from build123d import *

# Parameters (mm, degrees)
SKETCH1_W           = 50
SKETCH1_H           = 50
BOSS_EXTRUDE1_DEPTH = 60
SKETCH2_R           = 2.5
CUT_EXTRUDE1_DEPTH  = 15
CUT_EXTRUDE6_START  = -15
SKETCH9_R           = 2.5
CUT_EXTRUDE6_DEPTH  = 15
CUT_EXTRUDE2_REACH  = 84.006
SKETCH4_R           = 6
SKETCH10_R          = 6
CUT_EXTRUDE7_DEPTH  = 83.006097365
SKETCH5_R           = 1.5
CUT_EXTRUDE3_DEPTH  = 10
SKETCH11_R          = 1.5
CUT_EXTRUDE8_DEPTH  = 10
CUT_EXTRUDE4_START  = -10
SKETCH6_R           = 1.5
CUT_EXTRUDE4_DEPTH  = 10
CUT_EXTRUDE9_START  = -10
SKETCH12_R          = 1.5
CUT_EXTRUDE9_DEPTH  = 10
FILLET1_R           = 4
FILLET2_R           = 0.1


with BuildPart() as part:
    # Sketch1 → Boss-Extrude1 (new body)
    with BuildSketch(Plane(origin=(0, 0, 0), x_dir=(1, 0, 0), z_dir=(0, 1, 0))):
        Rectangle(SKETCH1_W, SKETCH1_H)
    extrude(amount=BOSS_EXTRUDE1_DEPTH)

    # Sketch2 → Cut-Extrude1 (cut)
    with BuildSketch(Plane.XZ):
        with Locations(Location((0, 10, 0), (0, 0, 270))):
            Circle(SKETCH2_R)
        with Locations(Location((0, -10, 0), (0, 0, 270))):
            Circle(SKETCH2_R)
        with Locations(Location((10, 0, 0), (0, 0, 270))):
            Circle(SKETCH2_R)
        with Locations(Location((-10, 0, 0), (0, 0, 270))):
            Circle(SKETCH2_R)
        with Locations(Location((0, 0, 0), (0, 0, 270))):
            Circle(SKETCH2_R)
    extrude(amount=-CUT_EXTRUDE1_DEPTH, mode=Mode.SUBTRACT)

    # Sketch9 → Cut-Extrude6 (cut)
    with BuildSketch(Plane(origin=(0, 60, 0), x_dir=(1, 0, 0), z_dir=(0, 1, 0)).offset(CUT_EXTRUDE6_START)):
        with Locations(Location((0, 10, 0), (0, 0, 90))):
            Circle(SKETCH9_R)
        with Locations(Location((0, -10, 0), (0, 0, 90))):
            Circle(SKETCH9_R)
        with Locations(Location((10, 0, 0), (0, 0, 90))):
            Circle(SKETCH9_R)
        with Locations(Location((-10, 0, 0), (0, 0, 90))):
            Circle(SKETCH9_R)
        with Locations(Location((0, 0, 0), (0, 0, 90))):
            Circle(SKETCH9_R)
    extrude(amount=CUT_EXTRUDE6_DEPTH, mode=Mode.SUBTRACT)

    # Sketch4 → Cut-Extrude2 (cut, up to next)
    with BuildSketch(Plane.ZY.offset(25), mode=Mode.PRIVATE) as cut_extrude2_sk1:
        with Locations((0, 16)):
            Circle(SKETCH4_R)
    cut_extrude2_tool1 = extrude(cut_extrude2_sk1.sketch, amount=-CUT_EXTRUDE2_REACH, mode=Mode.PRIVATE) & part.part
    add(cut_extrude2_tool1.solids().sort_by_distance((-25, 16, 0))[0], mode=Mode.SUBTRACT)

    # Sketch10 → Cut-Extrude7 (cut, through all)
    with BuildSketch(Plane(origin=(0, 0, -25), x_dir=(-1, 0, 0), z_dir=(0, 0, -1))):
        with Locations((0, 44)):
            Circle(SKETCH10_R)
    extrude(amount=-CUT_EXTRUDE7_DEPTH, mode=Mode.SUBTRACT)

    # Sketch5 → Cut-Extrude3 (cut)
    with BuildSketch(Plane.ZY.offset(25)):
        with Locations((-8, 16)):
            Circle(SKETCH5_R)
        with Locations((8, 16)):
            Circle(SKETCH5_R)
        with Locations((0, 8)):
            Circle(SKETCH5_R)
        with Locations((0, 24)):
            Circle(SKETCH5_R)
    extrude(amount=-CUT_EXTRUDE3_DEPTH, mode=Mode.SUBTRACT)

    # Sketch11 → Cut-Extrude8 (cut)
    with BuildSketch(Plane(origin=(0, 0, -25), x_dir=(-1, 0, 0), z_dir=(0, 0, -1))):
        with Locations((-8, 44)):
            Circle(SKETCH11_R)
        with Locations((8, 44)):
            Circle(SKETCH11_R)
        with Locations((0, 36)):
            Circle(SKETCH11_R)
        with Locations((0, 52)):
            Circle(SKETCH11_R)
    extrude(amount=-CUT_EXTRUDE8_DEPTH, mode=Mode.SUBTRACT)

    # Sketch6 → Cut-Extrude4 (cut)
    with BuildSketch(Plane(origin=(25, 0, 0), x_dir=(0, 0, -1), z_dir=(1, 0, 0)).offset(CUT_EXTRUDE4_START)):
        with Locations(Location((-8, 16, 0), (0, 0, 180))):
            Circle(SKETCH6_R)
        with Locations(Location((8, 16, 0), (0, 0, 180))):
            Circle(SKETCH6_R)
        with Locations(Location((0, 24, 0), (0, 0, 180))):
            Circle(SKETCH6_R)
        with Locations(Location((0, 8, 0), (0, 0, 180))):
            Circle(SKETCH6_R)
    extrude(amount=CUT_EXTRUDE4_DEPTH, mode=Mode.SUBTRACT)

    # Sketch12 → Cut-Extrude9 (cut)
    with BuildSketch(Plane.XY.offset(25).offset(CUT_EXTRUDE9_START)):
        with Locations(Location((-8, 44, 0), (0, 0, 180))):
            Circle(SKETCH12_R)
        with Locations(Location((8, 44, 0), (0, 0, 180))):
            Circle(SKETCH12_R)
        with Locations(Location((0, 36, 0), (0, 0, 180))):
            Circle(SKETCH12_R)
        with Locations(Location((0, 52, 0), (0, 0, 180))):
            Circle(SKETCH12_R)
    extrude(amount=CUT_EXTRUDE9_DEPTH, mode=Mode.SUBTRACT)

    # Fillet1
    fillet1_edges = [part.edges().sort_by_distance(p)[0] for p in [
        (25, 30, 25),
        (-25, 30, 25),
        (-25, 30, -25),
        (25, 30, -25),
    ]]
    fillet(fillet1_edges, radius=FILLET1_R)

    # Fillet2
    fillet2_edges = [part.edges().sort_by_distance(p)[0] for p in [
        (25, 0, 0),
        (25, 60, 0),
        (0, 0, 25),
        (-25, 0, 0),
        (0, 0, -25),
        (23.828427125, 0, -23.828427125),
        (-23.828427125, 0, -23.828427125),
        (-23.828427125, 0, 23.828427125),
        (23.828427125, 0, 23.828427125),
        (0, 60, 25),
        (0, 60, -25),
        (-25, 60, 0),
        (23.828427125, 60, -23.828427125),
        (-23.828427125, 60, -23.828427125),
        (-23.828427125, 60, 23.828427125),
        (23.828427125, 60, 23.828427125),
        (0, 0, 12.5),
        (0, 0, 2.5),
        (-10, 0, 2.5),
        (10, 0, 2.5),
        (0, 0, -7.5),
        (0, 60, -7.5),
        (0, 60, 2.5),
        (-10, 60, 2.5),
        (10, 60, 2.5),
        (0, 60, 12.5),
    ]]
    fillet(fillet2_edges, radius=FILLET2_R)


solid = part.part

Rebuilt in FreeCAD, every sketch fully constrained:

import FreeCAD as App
import Part
import Sketcher

V = App.Vector


def edges_at(feature, points):
    """Names of the edges that pass closest to the given points."""
    edges = feature.Shape.Edges
    near = lambda p: min(range(len(edges)), key=lambda i: edges[i].distToShape(Part.Vertex(*p))[0])
    return sorted({f"Edge{near(p) + 1}" for p in points})

doc = App.newDocument("Part")
params = doc.addObject("Spreadsheet::Sheet", "Params")
for row, (alias, value) in enumerate([
    ("sketch1_width", "50 mm"),
    ("pad1_length", "60 mm"),
    ("sketch2_diameter", "5 mm"),
    ("pocket1_length", "15 mm"),
    ("sketch3_diameter", "5 mm"),
    ("pocket2_length", "15 mm"),
    ("sketch4_diameter", "12 mm"),
    ("sketch5_diameter", "12 mm"),
    ("sketch6_diameter", "3 mm"),
    ("pocket5_length", "10 mm"),
    ("sketch7_diameter", "3 mm"),
    ("pocket6_length", "10 mm"),
    ("sketch8_diameter", "3 mm"),
    ("pocket7_length", "10 mm"),
    ("sketch9_diameter", "3 mm"),
    ("pocket8_length", "10 mm"),
    ("fillet_radius", "4 mm"),
    ("fillet2_radius", "0.1 mm"),
], start=1):
    params.set(f"A{row}", alias)
    params.set(f"B{row}", "=" + value)
    params.setAlias(f"B{row}", alias)

body = doc.addObject("PartDesign::Body", "Body")

sketch1 = body.newObject("Sketcher::SketchObject", "Sketch")
sketch1.AttachmentSupport = (doc.getObject("XZ_Plane"), [""])
sketch1.MapMode = "FlatFace"
sketch1.addGeometry([
    Part.LineSegment(V(-25, -25, 0), V(-25, 25, 0)),
    Part.LineSegment(V(-25, 25, 0), V(25, 25, 0)),
    Part.LineSegment(V(25, 25, 0), V(25, -25, 0)),
    Part.LineSegment(V(25, -25, 0), V(-25, -25, 0)),
], False)
sketch1.addConstraint([
    Sketcher.Constraint("Coincident", 0, 2, 1, 1),
    Sketcher.Constraint("Coincident", 1, 2, 2, 1),
    Sketcher.Constraint("Coincident", 2, 2, 3, 1),
    Sketcher.Constraint("Coincident", 3, 2, 0, 1),
    Sketcher.Constraint("Vertical", 0),
    Sketcher.Constraint("Horizontal", 1),
    Sketcher.Constraint("Vertical", 2),
    Sketcher.Constraint("Horizontal", 3),
    Sketcher.Constraint("Symmetric", 0, 2, 2, 2, -1, 1),
    Sketcher.Constraint("Equal", 3, 0),
    Sketcher.Constraint("DistanceX", 1, 1, 1, 2, 50.0),
])
sketch1.setExpression("Constraints[10]", "Params.sketch1_width")
pad1 = body.newObject("PartDesign::Pad", "Pad")
pad1.Profile = sketch1
pad1.setExpression("Length", "Params.pad1_length")
pad1.Reversed = True

sketch2 = body.newObject("Sketcher::SketchObject", "Sketch001")
sketch2.AttachmentSupport = (doc.getObject("XZ_Plane"), [""])
sketch2.MapMode = "FlatFace"
sketch2.addGeometry([
    Part.Circle(V(0, 10, 0), V(0, 0, 1), 2.5),
    Part.Circle(V(0, -10, 0), V(0, 0, 1), 2.5),
    Part.Circle(V(10, 0, 0), V(0, 0, 1), 2.5),
    Part.Circle(V(-10, 0, 0), V(0, 0, 1), 2.5),
    Part.Circle(V(0, 0, 0), V(0, 0, 1), 2.5),
], False)
sketch2.addConstraint([
    Sketcher.Constraint("Coincident", 4, 3, -1, 1),
    Sketcher.Constraint("Equal", 0, 1),
    Sketcher.Constraint("Equal", 1, 2),
    Sketcher.Constraint("Equal", 2, 3),
    Sketcher.Constraint("Equal", 3, 4),
    Sketcher.Constraint("Symmetric", 0, 3, 1, 3, -1, 1),
    Sketcher.Constraint("Symmetric", 2, 3, 3, 3, -1, 1),
    Sketcher.Constraint("PointOnObject", 0, 3, -2),
    Sketcher.Constraint("PointOnObject", 2, 3, -1),
    Sketcher.Constraint("Diameter", 0, 5.0),
    Sketcher.Constraint("DistanceY", -1, 1, 0, 3, 10.0),
    Sketcher.Constraint("DistanceX", -1, 1, 2, 3, 10.0),
])
sketch2.setExpression("Constraints[9]", "Params.sketch2_diameter")
pocket1 = body.newObject("PartDesign::Pocket", "Pocket")
pocket1.Profile = sketch2
pocket1.setExpression("Length", "Params.pocket1_length")

sketch3 = body.newObject("Sketcher::SketchObject", "Sketch002")
sketch3.AttachmentSupport = (doc.getObject("XZ_Plane"), [""])
sketch3.MapMode = "FlatFace"
sketch3.AttachmentOffset = App.Placement(V(0, 0, -45), App.Rotation())
sketch3.addGeometry([
    Part.Circle(V(0, -10, 0), V(0, 0, 1), 2.5),
    Part.Circle(V(0, 10, 0), V(0, 0, 1), 2.5),
    Part.Circle(V(10, 0, 0), V(0, 0, 1), 2.5),
    Part.Circle(V(-10, 0, 0), V(0, 0, 1), 2.5),
    Part.Circle(V(0, 0, 0), V(0, 0, 1), 2.5),
], False)
sketch3.addConstraint([
    Sketcher.Constraint("Coincident", 4, 3, -1, 1),
    Sketcher.Constraint("Equal", 0, 1),
    Sketcher.Constraint("Equal", 1, 2),
    Sketcher.Constraint("Equal", 2, 3),
    Sketcher.Constraint("Equal", 3, 4),
    Sketcher.Constraint("Symmetric", 0, 3, 1, 3, -1, 1),
    Sketcher.Constraint("Symmetric", 2, 3, 3, 3, -1, 1),
    Sketcher.Constraint("PointOnObject", 0, 3, -2),
    Sketcher.Constraint("PointOnObject", 2, 3, -1),
    Sketcher.Constraint("Diameter", 0, 5.0),
    Sketcher.Constraint("DistanceY", 0, 3, -1, 1, 10.0),
    Sketcher.Constraint("DistanceX", -1, 1, 2, 3, 10.0),
])
sketch3.setExpression("Constraints[9]", "Params.sketch3_diameter")
pocket2 = body.newObject("PartDesign::Pocket", "Pocket001")
pocket2.Profile = sketch3
pocket2.setExpression("Length", "Params.pocket2_length")

sketch4 = body.newObject("Sketcher::SketchObject", "Sketch003")
sketch4.AttachmentSupport = (doc.getObject("YZ_Plane"), [""])
sketch4.MapMode = "FlatFace"
sketch4.AttachmentOffset = App.Placement(V(0, 0, -25), App.Rotation())
sketch4.addGeometry(Part.Circle(V(16, 0, 0), V(0, 0, 1), 6), False)
sketch4.addConstraint([
    Sketcher.Constraint("PointOnObject", 0, 3, -1),
    Sketcher.Constraint("Diameter", 0, 12.0),
    Sketcher.Constraint("DistanceX", -1, 1, 0, 3, 16.0),
])
sketch4.setExpression("Constraints[1]", "Params.sketch4_diameter")
pocket3 = body.newObject("PartDesign::Pocket", "Pocket002")
pocket3.Profile = sketch4
pocket3.Type = "UpToFirst"
pocket3.Reversed = True

sketch5 = body.newObject("Sketcher::SketchObject", "Sketch004")
sketch5.AttachmentSupport = (doc.getObject("XY_Plane"), [""])
sketch5.MapMode = "FlatFace"
sketch5.AttachmentOffset = App.Placement(V(0, 0, -25), App.Rotation())
sketch5.addGeometry(Part.Circle(V(0, 44, 0), V(0, 0, 1), 6), False)
sketch5.addConstraint([
    Sketcher.Constraint("PointOnObject", 0, 3, -2),
    Sketcher.Constraint("Diameter", 0, 12.0),
    Sketcher.Constraint("DistanceY", -1, 1, 0, 3, 44.0),
])
sketch5.setExpression("Constraints[1]", "Params.sketch5_diameter")
pocket4 = body.newObject("PartDesign::Pocket", "Pocket003")
pocket4.Profile = sketch5
pocket4.Type = "ThroughAll"
pocket4.Reversed = True

sketch6 = body.newObject("Sketcher::SketchObject", "Sketch005")
sketch6.AttachmentSupport = (doc.getObject("YZ_Plane"), [""])
sketch6.MapMode = "FlatFace"
sketch6.AttachmentOffset = App.Placement(V(0, 0, -25), App.Rotation())
sketch6.addGeometry([
    Part.Circle(V(16, -8, 0), V(0, 0, 1), 1.5),
    Part.Circle(V(16, 8, 0), V(0, 0, 1), 1.5),
    Part.Circle(V(8, 0, 0), V(0, 0, 1), 1.5),
    Part.Circle(V(24, 0, 0), V(0, 0, 1), 1.5),
], False)
sketch6.addConstraint([
    Sketcher.Constraint("Equal", 0, 1),
    Sketcher.Constraint("Equal", 1, 2),
    Sketcher.Constraint("Equal", 2, 3),
    Sketcher.Constraint("Symmetric", 0, 3, 1, 3, -1),
    Sketcher.Constraint("PointOnObject", 2, 3, -1),
    Sketcher.Constraint("PointOnObject", 3, 3, -1),
    Sketcher.Constraint("Diameter", 0, 3.0),
    Sketcher.Constraint("DistanceX", -1, 1, 0, 3, 16.0),
    Sketcher.Constraint("DistanceY", 0, 3, -1, 1, 8.0),
    Sketcher.Constraint("DistanceX", -1, 1, 2, 3, 8.0),
    Sketcher.Constraint("DistanceX", -1, 1, 3, 3, 24.0),
])
sketch6.setExpression("Constraints[6]", "Params.sketch6_diameter")
pocket5 = body.newObject("PartDesign::Pocket", "Pocket004")
pocket5.Profile = sketch6
pocket5.setExpression("Length", "Params.pocket5_length")
pocket5.Reversed = True

sketch7 = body.newObject("Sketcher::SketchObject", "Sketch006")
sketch7.AttachmentSupport = (doc.getObject("XY_Plane"), [""])
sketch7.MapMode = "FlatFace"
sketch7.AttachmentOffset = App.Placement(V(0, 0, -25), App.Rotation())
sketch7.addGeometry([
    Part.Circle(V(8, 44, 0), V(0, 0, 1), 1.5),
    Part.Circle(V(-8, 44, 0), V(0, 0, 1), 1.5),
    Part.Circle(V(0, 36, 0), V(0, 0, 1), 1.5),
    Part.Circle(V(0, 52, 0), V(0, 0, 1), 1.5),
], False)
sketch7.addConstraint([
    Sketcher.Constraint("Equal", 0, 1),
    Sketcher.Constraint("Equal", 1, 2),
    Sketcher.Constraint("Equal", 2, 3),
    Sketcher.Constraint("Symmetric", 0, 3, 1, 3, -2),
    Sketcher.Constraint("PointOnObject", 2, 3, -2),
    Sketcher.Constraint("PointOnObject", 3, 3, -2),
    Sketcher.Constraint("Diameter", 0, 3.0),
    Sketcher.Constraint("DistanceX", -1, 1, 0, 3, 8.0),
    Sketcher.Constraint("DistanceY", -1, 1, 0, 3, 44.0),
    Sketcher.Constraint("DistanceY", -1, 1, 2, 3, 36.0),
    Sketcher.Constraint("DistanceY", -1, 1, 3, 3, 52.0),
])
sketch7.setExpression("Constraints[6]", "Params.sketch7_diameter")
pocket6 = body.newObject("PartDesign::Pocket", "Pocket005")
pocket6.Profile = sketch7
pocket6.setExpression("Length", "Params.pocket6_length")
pocket6.Reversed = True

sketch8 = body.newObject("Sketcher::SketchObject", "Sketch007")
sketch8.AttachmentSupport = (doc.getObject("YZ_Plane"), [""])
sketch8.MapMode = "FlatFace"
sketch8.AttachmentOffset = App.Placement(V(0, 0, 15), App.Rotation())
sketch8.addGeometry([
    Part.Circle(V(16, 8, 0), V(0, 0, 1), 1.5),
    Part.Circle(V(16, -8, 0), V(0, 0, 1), 1.5),
    Part.Circle(V(24, 0, 0), V(0, 0, 1), 1.5),
    Part.Circle(V(8, 0, 0), V(0, 0, 1), 1.5),
], False)
sketch8.addConstraint([
    Sketcher.Constraint("Equal", 0, 1),
    Sketcher.Constraint("Equal", 1, 2),
    Sketcher.Constraint("Equal", 2, 3),
    Sketcher.Constraint("Symmetric", 0, 3, 1, 3, -1),
    Sketcher.Constraint("PointOnObject", 2, 3, -1),
    Sketcher.Constraint("PointOnObject", 3, 3, -1),
    Sketcher.Constraint("Diameter", 0, 3.0),
    Sketcher.Constraint("DistanceX", -1, 1, 0, 3, 16.0),
    Sketcher.Constraint("DistanceY", -1, 1, 0, 3, 8.0),
    Sketcher.Constraint("DistanceX", -1, 1, 2, 3, 24.0),
    Sketcher.Constraint("DistanceX", -1, 1, 3, 3, 8.0),
])
sketch8.setExpression("Constraints[6]", "Params.sketch8_diameter")
pocket7 = body.newObject("PartDesign::Pocket", "Pocket006")
pocket7.Profile = sketch8
pocket7.setExpression("Length", "Params.pocket7_length")
pocket7.Reversed = True

sketch9 = body.newObject("Sketcher::SketchObject", "Sketch008")
sketch9.AttachmentSupport = (doc.getObject("XY_Plane"), [""])
sketch9.MapMode = "FlatFace"
sketch9.AttachmentOffset = App.Placement(V(0, 0, 15), App.Rotation())
sketch9.addGeometry([
    Part.Circle(V(-8, 44, 0), V(0, 0, 1), 1.5),
    Part.Circle(V(8, 44, 0), V(0, 0, 1), 1.5),
    Part.Circle(V(0, 36, 0), V(0, 0, 1), 1.5),
    Part.Circle(V(0, 52, 0), V(0, 0, 1), 1.5),
], False)
sketch9.addConstraint([
    Sketcher.Constraint("Equal", 0, 1),
    Sketcher.Constraint("Equal", 1, 2),
    Sketcher.Constraint("Equal", 2, 3),
    Sketcher.Constraint("Symmetric", 0, 3, 1, 3, -2),
    Sketcher.Constraint("PointOnObject", 2, 3, -2),
    Sketcher.Constraint("PointOnObject", 3, 3, -2),
    Sketcher.Constraint("Diameter", 0, 3.0),
    Sketcher.Constraint("DistanceX", 0, 3, -1, 1, 8.0),
    Sketcher.Constraint("DistanceY", -1, 1, 0, 3, 44.0),
    Sketcher.Constraint("DistanceY", -1, 1, 2, 3, 36.0),
    Sketcher.Constraint("DistanceY", -1, 1, 3, 3, 52.0),
])
sketch9.setExpression("Constraints[6]", "Params.sketch9_diameter")
pocket8 = body.newObject("PartDesign::Pocket", "Pocket007")
pocket8.Profile = sketch9
pocket8.setExpression("Length", "Params.pocket8_length")
pocket8.Reversed = True
doc.recompute()

fillet = body.newObject("PartDesign::Fillet", "Fillet")
fillet.Base = (pocket8, edges_at(pocket8, [
    (25, 30, 25),
    (-25, 30, 25),
    (-25, 30, -25),
    (25, 30, -25),
]))
fillet.setExpression("Radius", "Params.fillet_radius")
doc.recompute()

fillet2 = body.newObject("PartDesign::Fillet", "Fillet001")
fillet2.Base = (fillet, edges_at(fillet, [
    (25, 0, 0),
    (25, 60, 0),
    (0, 0, 25),
    (-25, 0, 0),
    (0, 0, -25),
    (23.828, 0, -23.828),
    (-23.828, 0, -23.828),
    (-23.828, 0, 23.828),
    (23.828, 0, 23.828),
    (0, 60, 25),
    (0, 60, -25),
    (-25, 60, 0),
    (23.828, 60, -23.828),
    (-23.828, 60, -23.828),
    (-23.828, 60, 23.828),
    (23.828, 60, 23.828),
    (0, 0, 12.5),
    (0, 0, 2.5),
    (-10, 0, 2.5),
    (10, 0, 2.5),
    (0, 0, -7.5),
    (0, 60, -7.5),
    (0, 60, 2.5),
    (-10, 60, 2.5),
    (10, 60, 2.5),
    (0, 60, 12.5),
]))
fillet2.setExpression("Radius", "Params.fillet2_radius")

doc.recompute()
